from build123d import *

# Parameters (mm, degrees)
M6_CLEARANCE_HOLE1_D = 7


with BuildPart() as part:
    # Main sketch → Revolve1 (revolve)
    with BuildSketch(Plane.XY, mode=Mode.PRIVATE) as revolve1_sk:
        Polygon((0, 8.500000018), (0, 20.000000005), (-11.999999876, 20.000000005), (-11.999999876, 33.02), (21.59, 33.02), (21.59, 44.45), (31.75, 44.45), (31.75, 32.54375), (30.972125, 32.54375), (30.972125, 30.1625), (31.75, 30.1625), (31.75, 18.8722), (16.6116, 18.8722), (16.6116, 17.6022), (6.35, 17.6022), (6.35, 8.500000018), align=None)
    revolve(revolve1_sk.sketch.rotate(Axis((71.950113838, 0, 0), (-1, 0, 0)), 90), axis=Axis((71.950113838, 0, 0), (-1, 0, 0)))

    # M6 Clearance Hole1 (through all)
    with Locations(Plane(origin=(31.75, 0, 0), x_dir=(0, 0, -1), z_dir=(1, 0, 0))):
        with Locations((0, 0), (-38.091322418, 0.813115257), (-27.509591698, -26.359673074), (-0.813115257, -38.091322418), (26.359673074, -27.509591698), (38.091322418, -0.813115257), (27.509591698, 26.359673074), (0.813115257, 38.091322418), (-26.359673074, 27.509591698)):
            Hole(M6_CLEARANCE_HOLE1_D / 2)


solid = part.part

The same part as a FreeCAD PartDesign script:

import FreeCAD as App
import Part
import Sketcher
Q = App.Units.Quantity


def add_polygon(sketch, points):
    """Adds a closed chain of lines whose ends are joined by coincident constraints."""
    first, n = sketch.GeometryCount, len(points)
    for a, b in zip(points, points[1:] + points[:1]):
        sketch.addGeometry(Part.LineSegment(App.Vector(*a, 0), App.Vector(*b, 0)), False)
    for i in range(n):
        sketch.addConstraint(Sketcher.Constraint("Coincident", first + i, 2, first + (i + 1) % n, 1))

doc = App.newDocument("Part")
body = doc.addObject("PartDesign::Body", "Body")

# Sketch on XY plane
sketch1 = body.newObject("Sketcher::SketchObject", "Sketch")
sketch1.AttachmentSupport = (doc.getObject("XY_Plane"), [""])
sketch1.MapMode = "FlatFace"
add_polygon(sketch1, [(0, 20), (0, 8.5), (6.3, 8.5), (6.3, 17.6), (16.6, 17.6), (16.6, 18.9), (31.8, 18.9), (31.8, 30.2), (31, 30.2), (31, 32.5), (31.8, 32.5), (31.8, 44.5), (21.6, 44.5), (21.6, 33), (-12, 33), (-12, 20)])  # lines 0-15
sketch1.addConstraint(Sketcher.Constraint("Vertical", 0))
sketch1.addConstraint(Sketcher.Constraint("Horizontal", 1))
sketch1.addConstraint(Sketcher.Constraint("Vertical", 2))
sketch1.addConstraint(Sketcher.Constraint("Horizontal", 3))
sketch1.addConstraint(Sketcher.Constraint("Vertical", 4))
sketch1.addConstraint(Sketcher.Constraint("Horizontal", 5))
sketch1.addConstraint(Sketcher.Constraint("Vertical", 6))
sketch1.addConstraint(Sketcher.Constraint("Horizontal", 7))
sketch1.addConstraint(Sketcher.Constraint("Vertical", 8))
sketch1.addConstraint(Sketcher.Constraint("Horizontal", 9))
sketch1.addConstraint(Sketcher.Constraint("Vertical", 10))
sketch1.addConstraint(Sketcher.Constraint("Horizontal", 11))
sketch1.addConstraint(Sketcher.Constraint("Vertical", 12))
sketch1.addConstraint(Sketcher.Constraint("Horizontal", 13))
sketch1.addConstraint(Sketcher.Constraint("Vertical", 14))
sketch1.addConstraint(Sketcher.Constraint("Horizontal", 15))
sketch1.addConstraint(Sketcher.Constraint("PointOnObject", 0, 2, -2))
sketch1.addConstraint(Sketcher.Constraint("Vertical", 6, 2, 9, 2))
sketch1.addConstraint(Sketcher.Constraint("DistanceX", 11, 2, 11, 1, Q("0.4 in")))
sketch1.addConstraint(Sketcher.Constraint("DistanceX", 2, 2, 5, 2, Q("1 in")))
sketch1.addConstraint(Sketcher.Constraint("DistanceX", 1, 1, 1, 2, Q("0.25 in")))
sketch1.addConstraint(Sketcher.Constraint("DistanceY", 4, 1, 4, 2, Q("0.05 in")))
sketch1.addConstraint(Sketcher.Constraint("DistanceY", 12, 2, 12, 1, Q("0.45 in")))
sketch1.addConstraint(Sketcher.Constraint("DistanceY", -1, 1, 12, 2, Q("1.3 in")))
sketch1.addConstraint(Sketcher.Constraint("DistanceX", 3, 1, 3, 2, Q("0.404 in")))
sketch1.addConstraint(Sketcher.Constraint("DistanceY", 8, 1, 8, 2, Q("0.09375 in")))
sketch1.addConstraint(Sketcher.Constraint("DistanceY", 10, 1, 10, 2, Q("0.46875 in")))
sketch1.addConstraint(Sketcher.Constraint("DistanceY", 6, 1, 6, 2, Q("0.4445 in")))
sketch1.addConstraint(Sketcher.Constraint("DistanceX", 13, 2, 13, 1, 33.59))
sketch1.addConstraint(Sketcher.Constraint("DistanceY", 0, 2, 0, 1, 11.5))
sketch1.addConstraint(Sketcher.Constraint("DistanceY", 2, 1, 2, 2, 9.1022))
sketch1.addConstraint(Sketcher.Constraint("DistanceX", 7, 2, 7, 1, 0.777875))
revolution = body.newObject("PartDesign::Revolution", "Revolution")
revolution.Profile = sketch1
revolution.ReferenceAxis = (sketch1, ["H_Axis"])
revolution.Angle = 360

# Sketch on YZ plane
sketch2 = body.newObject("Sketcher::SketchObject", "Sketch001")
sketch2.AttachmentSupport = (doc.getObject("YZ_Plane"), [""])
sketch2.MapMode = "FlatFace"
sketch2.AttachmentOffset = App.Placement(App.Vector(0, 0, 1.25 * 25.4), App.Rotation())
sketch2.addGeometry(Part.Circle(App.Vector(0, 0, 0), App.Vector(0, 0, 1), 3.5), False)
sketch2.addGeometry(Part.Circle(App.Vector(0.8, 38.1, 0), App.Vector(0, 0, 1), 3.5), False)
sketch2.addGeometry(Part.Circle(App.Vector(-26.4, 27.5, 0), App.Vector(0, 0, 1), 3.5), False)
sketch2.addGeometry(Part.Circle(App.Vector(-38.1, 0.8, 0), App.Vector(0, 0, 1), 3.5), False)
sketch2.addGeometry(Part.Circle(App.Vector(-27.5, -26.4, 0), App.Vector(0, 0, 1), 3.5), False)
sketch2.addGeometry(Part.Circle(App.Vector(-0.8, -38.1, 0), App.Vector(0, 0, 1), 3.5), False)
sketch2.addGeometry(Part.Circle(App.Vector(26.4, -27.5, 0), App.Vector(0, 0, 1), 3.5), False)
sketch2.addGeometry(Part.Circle(App.Vector(38.1, -0.8, 0), App.Vector(0, 0, 1), 3.5), False)
sketch2.addGeometry(Part.Circle(App.Vector(27.5, 26.4, 0), App.Vector(0, 0, 1), 3.5), False)
sketch2.addConstraint(Sketcher.Constraint("Coincident", 0, 3, -1, 1))
sketch2.addConstraint(Sketcher.Constraint("Equal", 0, 1))
sketch2.addConstraint(Sketcher.Constraint("Equal", 1, 2))
sketch2.addConstraint(Sketcher.Constraint("Equal", 2, 3))
sketch2.addConstraint(Sketcher.Constraint("Equal", 3, 4))
sketch2.addConstraint(Sketcher.Constraint("Equal", 4, 5))
sketch2.addConstraint(Sketcher.Constraint("Equal", 5, 6))
sketch2.addConstraint(Sketcher.Constraint("Equal", 6, 7))
sketch2.addConstraint(Sketcher.Constraint("Equal", 7, 8))
sketch2.addConstraint(Sketcher.Constraint("Symmetric", 1, 3, 5, 3, -1, 1))
sketch2.addConstraint(Sketcher.Constraint("Symmetric", 2, 3, 6, 3, -1, 1))
sketch2.addConstraint(Sketcher.Constraint("Symmetric", 3, 3, 7, 3, -1, 1))
sketch2.addConstraint(Sketcher.Constraint("Symmetric", 4, 3, 8, 3, -1, 1))
sketch2.addConstraint(Sketcher.Constraint("Diameter", 0, 7.0))
sketch2.addConstraint(Sketcher.Constraint("DistanceY", -1, 1, 2, 3, 27.509592))
sketch2.addConstraint(Sketcher.Constraint("DistanceX", 4, 3, -1, 1, 27.509592))
sketch2.addConstraint(Sketcher.Constraint("DistanceX", 2, 3, 1, 3, 27.172788))
sketch2.addConstraint(Sketcher.Constraint("DistanceY", 2, 3, 1, 3, 10.581731))
sketch2.addConstraint(Sketcher.Constraint("DistanceX", 3, 3, 2, 3, 11.731649))
sketch2.addConstraint(Sketcher.Constraint("DistanceX", 3, 3, 4, 3, 10.581731))
sketch2.addConstraint(Sketcher.Constraint("DistanceY", 4, 3, 3, 3, 27.172788))
sketch2.addConstraint(Sketcher.Constraint("DistanceY", 5, 3, 4, 3, 11.731649))
doc.recompute()
hole = body.newObject("PartDesign::Hole", "Hole")
hole.Profile = sketch2
hole.ThreadType = "None"
hole.Diameter = 7
hole.DepthType = "ThroughAll"

doc.recompute()
